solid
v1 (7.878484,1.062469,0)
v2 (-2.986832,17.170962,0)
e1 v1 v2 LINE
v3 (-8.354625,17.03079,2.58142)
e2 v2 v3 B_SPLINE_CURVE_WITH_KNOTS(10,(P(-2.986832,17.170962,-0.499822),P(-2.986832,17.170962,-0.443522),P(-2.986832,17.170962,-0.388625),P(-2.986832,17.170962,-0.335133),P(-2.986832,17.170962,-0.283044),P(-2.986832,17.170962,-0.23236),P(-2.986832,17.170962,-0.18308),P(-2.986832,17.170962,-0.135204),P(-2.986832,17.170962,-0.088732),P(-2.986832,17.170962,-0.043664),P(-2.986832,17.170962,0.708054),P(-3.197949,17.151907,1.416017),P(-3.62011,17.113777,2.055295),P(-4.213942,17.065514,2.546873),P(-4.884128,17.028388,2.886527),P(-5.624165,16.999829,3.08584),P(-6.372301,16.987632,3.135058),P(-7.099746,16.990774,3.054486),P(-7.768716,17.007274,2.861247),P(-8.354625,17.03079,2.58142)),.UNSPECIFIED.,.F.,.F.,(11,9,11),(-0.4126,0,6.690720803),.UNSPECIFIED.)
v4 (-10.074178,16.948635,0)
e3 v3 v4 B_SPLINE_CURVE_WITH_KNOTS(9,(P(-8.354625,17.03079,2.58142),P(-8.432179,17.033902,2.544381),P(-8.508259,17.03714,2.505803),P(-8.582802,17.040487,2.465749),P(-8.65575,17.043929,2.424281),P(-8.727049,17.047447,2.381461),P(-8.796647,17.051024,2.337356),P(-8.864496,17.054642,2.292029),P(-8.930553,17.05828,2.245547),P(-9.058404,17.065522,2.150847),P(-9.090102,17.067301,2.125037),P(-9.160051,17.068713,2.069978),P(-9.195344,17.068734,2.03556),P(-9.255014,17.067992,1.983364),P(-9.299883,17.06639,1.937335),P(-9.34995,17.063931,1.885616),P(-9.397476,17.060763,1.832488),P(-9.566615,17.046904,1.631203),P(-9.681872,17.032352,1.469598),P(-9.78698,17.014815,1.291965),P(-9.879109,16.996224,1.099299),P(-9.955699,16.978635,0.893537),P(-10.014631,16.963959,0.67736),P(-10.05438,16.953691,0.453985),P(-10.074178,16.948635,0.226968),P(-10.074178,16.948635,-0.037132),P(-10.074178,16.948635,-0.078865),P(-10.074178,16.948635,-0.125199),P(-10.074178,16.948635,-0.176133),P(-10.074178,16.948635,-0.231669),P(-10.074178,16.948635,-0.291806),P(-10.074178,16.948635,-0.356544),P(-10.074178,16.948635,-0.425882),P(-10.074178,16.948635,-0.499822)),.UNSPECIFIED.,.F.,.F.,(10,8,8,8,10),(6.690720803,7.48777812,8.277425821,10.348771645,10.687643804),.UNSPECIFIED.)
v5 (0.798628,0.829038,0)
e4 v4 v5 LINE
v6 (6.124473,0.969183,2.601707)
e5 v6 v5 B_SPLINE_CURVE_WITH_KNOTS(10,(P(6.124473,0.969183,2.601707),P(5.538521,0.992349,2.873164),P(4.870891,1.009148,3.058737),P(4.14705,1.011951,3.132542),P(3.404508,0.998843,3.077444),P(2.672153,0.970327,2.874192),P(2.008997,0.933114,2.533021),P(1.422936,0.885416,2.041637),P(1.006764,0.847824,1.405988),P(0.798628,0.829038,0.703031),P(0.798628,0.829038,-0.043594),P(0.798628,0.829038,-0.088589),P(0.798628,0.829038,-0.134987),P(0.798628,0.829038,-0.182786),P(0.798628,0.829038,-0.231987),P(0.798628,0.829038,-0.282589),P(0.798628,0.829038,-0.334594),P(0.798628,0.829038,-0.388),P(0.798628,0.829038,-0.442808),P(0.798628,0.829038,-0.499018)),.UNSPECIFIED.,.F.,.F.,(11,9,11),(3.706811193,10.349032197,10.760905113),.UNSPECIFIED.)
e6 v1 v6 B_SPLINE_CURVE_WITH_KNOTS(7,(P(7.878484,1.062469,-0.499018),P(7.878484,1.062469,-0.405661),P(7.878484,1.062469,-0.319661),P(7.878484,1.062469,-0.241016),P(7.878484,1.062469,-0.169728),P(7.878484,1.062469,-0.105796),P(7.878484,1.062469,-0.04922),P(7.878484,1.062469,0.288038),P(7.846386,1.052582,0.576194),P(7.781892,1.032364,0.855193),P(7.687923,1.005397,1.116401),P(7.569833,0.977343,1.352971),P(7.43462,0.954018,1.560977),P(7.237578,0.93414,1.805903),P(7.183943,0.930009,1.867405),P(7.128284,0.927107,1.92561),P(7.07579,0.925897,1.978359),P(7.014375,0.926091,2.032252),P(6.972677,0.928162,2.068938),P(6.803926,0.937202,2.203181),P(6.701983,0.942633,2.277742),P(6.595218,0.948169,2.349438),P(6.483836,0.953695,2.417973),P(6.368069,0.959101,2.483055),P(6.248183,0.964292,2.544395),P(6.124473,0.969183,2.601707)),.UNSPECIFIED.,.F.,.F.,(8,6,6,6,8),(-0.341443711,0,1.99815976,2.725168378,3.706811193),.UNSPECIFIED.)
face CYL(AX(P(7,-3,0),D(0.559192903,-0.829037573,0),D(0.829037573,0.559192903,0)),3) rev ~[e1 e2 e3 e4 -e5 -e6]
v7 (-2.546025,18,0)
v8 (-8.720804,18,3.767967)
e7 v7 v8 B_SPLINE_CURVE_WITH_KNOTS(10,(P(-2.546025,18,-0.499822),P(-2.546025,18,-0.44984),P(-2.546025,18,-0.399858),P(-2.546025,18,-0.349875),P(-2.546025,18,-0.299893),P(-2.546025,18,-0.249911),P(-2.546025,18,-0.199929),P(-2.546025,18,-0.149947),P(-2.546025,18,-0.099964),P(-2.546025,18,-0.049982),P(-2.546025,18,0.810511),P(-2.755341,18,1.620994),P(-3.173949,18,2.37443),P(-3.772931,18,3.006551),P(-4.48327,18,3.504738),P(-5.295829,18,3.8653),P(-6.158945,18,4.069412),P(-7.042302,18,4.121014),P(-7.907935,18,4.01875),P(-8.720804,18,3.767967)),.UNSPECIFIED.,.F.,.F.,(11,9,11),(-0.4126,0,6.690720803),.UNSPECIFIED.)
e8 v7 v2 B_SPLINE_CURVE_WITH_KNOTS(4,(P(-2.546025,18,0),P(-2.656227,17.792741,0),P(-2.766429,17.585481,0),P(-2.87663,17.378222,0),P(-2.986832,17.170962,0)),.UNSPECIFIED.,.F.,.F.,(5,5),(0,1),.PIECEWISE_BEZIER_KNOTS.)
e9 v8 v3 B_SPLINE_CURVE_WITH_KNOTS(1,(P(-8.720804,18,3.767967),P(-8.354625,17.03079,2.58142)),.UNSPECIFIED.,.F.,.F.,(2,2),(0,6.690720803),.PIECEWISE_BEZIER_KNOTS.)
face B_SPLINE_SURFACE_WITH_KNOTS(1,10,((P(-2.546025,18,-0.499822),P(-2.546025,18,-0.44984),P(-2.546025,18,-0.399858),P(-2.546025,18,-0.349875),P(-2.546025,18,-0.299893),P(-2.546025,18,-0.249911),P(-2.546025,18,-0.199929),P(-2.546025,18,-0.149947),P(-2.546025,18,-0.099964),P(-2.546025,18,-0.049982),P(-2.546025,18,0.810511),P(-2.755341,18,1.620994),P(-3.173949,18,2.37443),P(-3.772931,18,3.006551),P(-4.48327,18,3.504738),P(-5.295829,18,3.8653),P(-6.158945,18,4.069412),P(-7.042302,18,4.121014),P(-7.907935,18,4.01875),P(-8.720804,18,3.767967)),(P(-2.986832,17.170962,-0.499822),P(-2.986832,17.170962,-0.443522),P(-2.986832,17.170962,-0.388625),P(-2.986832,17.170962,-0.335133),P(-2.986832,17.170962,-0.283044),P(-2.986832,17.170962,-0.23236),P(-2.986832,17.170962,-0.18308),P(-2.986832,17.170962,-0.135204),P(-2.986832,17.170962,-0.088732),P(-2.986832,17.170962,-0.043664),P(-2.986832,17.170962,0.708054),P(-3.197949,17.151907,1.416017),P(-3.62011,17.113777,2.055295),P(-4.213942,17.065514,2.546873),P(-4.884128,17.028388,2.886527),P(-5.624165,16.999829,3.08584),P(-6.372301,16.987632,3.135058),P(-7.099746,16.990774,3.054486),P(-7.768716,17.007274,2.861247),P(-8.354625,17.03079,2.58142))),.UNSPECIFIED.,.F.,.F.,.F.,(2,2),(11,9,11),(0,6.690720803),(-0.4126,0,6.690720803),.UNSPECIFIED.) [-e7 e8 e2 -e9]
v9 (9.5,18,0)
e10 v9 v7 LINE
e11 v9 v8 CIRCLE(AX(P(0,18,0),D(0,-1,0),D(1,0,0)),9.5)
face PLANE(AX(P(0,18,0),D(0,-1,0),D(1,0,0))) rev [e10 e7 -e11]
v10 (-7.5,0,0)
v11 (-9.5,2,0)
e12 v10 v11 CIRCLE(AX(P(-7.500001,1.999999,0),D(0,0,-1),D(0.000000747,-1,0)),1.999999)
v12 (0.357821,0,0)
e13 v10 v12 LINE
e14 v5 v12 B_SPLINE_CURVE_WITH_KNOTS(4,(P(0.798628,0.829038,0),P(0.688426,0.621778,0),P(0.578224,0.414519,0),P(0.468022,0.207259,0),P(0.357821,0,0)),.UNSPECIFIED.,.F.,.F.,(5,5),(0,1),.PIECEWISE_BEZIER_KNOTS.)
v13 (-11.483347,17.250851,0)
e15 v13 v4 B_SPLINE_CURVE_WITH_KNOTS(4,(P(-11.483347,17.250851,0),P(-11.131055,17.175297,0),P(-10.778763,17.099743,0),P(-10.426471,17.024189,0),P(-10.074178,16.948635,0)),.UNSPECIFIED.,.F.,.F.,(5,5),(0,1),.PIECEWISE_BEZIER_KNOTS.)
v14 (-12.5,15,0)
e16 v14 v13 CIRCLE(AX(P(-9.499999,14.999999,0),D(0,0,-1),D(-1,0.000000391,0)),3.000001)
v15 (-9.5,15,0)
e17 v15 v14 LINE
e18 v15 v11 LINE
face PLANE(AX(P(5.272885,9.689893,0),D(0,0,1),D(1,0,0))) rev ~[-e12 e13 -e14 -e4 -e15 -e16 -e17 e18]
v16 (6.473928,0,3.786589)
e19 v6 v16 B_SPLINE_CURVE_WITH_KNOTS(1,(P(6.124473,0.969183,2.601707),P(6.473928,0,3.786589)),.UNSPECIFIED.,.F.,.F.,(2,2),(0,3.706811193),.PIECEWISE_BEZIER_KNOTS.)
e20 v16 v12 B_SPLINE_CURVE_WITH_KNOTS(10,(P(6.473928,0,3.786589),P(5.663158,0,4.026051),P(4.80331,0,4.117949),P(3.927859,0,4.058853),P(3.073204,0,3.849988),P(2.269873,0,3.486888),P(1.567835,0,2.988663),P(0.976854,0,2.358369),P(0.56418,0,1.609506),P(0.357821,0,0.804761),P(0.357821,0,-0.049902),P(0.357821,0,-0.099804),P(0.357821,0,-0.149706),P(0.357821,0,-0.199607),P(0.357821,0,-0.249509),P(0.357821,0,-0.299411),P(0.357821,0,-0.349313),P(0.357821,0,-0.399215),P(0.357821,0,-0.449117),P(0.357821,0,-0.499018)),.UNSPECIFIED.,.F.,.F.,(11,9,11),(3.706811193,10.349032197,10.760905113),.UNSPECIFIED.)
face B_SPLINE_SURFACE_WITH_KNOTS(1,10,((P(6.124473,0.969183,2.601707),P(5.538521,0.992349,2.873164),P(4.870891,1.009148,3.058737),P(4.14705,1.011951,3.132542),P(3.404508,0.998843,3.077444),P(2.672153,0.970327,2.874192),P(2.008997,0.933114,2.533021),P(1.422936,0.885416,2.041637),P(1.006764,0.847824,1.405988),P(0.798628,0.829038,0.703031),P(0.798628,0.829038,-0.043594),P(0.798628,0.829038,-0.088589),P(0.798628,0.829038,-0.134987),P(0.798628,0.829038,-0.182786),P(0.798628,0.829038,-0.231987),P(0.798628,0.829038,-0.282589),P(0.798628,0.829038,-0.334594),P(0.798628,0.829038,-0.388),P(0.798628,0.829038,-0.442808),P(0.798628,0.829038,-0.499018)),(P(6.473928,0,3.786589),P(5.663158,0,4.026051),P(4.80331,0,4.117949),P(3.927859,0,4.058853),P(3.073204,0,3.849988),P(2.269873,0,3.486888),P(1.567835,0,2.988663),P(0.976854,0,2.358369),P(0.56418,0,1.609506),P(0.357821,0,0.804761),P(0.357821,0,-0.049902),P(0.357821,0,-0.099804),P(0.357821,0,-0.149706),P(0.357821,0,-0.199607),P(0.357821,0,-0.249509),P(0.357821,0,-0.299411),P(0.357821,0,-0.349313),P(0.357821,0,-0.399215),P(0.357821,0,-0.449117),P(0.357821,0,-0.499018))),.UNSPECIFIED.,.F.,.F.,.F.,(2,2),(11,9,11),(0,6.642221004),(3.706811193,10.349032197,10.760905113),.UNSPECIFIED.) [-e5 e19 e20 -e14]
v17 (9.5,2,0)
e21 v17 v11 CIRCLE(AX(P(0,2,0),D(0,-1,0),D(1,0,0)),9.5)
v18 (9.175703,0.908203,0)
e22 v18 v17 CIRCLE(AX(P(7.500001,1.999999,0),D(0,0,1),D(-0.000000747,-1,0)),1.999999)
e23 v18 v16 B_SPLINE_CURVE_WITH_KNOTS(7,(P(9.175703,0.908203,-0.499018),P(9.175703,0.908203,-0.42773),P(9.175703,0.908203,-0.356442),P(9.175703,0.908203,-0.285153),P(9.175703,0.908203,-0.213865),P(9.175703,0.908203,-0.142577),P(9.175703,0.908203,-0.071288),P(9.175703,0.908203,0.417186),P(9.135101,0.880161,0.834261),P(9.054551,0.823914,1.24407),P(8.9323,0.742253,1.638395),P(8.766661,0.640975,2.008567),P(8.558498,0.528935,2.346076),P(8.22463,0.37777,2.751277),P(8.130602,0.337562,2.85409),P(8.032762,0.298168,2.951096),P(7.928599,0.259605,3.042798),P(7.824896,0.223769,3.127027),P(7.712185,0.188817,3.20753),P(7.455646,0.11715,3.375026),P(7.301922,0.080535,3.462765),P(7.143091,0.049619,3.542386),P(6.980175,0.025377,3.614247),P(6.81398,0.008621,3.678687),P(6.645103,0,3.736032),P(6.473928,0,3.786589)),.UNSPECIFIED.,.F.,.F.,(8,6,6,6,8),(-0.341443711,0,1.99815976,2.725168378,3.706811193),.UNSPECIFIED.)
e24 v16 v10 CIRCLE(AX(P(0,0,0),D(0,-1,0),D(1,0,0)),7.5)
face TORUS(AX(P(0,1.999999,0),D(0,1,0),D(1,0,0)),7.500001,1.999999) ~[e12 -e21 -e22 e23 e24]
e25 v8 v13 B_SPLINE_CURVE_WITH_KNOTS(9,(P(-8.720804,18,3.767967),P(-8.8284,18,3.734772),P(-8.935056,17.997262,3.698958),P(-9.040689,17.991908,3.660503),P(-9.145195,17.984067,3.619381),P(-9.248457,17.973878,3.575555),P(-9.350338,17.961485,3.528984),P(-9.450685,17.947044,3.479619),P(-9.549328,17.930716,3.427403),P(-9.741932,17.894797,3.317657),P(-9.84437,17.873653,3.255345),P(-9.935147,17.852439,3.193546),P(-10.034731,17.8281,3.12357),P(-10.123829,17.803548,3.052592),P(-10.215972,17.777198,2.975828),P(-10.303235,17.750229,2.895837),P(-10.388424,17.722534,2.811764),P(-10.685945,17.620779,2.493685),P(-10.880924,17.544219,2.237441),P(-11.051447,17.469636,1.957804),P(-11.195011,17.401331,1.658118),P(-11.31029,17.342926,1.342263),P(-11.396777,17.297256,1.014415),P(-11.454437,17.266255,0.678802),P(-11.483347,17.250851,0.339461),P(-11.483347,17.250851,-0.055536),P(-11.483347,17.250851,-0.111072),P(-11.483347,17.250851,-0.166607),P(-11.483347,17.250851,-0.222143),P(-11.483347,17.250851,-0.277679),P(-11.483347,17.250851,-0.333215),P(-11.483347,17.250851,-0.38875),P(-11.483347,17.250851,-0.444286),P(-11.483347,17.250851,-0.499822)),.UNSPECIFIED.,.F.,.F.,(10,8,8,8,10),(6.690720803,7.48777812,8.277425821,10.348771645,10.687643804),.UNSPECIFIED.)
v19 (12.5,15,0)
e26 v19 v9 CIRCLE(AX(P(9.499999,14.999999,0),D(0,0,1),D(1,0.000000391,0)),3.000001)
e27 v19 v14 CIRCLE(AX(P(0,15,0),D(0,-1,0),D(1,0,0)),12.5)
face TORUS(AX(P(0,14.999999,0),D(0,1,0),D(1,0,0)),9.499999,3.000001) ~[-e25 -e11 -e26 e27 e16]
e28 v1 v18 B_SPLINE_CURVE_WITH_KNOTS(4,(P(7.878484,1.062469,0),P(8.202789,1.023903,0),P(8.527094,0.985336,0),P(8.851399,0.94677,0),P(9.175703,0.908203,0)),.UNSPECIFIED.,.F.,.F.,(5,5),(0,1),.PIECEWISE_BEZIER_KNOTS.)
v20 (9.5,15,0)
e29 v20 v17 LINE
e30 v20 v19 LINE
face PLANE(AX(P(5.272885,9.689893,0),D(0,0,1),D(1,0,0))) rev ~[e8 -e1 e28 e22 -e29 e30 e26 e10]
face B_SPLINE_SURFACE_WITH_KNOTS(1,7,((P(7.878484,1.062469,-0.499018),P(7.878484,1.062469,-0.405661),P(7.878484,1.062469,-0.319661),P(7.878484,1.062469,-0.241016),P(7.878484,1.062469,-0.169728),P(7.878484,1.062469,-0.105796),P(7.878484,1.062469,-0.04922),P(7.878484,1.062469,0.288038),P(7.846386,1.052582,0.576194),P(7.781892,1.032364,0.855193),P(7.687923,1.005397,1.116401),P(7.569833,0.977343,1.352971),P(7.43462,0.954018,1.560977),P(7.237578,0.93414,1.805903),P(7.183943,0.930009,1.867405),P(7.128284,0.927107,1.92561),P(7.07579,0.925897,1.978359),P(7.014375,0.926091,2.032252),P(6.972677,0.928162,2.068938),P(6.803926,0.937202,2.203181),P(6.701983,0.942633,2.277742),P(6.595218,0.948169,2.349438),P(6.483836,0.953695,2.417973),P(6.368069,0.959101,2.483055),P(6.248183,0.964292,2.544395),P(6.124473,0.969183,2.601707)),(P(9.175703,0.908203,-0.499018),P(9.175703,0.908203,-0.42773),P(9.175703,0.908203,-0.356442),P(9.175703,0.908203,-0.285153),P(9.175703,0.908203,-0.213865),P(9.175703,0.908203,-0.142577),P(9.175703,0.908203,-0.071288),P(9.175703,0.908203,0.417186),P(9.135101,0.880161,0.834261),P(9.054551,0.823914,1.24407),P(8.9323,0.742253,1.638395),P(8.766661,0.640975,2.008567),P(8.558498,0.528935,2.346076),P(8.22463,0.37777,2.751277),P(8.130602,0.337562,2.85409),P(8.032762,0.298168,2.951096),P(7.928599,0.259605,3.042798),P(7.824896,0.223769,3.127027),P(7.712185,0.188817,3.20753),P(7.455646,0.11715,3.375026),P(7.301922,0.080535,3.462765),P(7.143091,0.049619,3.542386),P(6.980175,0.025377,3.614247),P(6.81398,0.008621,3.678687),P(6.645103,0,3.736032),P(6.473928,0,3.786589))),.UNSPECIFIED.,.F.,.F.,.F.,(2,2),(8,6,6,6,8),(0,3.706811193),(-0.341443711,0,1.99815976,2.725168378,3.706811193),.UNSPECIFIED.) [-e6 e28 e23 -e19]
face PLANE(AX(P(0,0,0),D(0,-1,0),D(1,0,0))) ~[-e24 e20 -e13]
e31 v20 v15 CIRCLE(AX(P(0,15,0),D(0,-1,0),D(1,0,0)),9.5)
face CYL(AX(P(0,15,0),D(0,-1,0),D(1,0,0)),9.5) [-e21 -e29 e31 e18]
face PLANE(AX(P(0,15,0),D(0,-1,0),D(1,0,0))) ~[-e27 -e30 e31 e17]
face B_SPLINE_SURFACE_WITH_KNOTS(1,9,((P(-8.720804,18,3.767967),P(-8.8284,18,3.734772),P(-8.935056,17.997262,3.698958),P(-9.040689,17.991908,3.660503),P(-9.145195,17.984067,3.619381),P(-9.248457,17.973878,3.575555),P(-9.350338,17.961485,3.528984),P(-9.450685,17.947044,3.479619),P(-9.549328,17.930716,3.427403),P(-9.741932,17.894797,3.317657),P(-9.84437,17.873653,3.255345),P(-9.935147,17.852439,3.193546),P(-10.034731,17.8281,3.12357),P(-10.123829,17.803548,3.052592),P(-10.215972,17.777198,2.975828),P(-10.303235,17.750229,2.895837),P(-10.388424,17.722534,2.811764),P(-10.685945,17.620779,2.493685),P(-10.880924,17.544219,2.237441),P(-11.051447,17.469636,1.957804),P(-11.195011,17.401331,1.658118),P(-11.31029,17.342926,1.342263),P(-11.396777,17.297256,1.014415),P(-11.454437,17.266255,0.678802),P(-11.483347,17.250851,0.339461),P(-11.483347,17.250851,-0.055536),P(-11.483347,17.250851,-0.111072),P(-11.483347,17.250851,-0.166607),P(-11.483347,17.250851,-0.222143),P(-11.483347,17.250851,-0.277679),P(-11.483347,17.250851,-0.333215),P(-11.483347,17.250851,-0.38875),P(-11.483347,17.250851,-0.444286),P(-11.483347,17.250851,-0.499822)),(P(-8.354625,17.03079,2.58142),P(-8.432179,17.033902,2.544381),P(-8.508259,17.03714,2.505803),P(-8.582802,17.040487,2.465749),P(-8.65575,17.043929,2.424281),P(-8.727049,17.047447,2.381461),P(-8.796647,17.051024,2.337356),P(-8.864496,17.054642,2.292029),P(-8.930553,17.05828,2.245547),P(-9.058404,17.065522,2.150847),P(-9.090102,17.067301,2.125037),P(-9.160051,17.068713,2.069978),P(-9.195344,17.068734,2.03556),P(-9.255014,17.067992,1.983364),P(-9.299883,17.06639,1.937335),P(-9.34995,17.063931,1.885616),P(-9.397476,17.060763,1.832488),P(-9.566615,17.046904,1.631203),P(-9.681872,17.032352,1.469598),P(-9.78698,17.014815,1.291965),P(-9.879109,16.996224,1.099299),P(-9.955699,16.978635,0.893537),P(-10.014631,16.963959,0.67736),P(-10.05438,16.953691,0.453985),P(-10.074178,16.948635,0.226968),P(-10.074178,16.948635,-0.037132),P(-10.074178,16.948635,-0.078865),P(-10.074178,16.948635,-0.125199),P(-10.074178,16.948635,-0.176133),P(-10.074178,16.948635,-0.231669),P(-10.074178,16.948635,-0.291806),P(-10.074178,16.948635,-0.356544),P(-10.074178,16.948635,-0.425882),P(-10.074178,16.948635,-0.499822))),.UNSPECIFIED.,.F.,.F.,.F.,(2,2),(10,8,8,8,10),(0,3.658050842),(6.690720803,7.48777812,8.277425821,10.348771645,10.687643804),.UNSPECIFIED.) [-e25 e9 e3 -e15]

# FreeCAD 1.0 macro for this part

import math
import FreeCAD as App
import Part
import Sketcher


def edges_at(feature, points):
    """Names of the edges that pass closest to the given points."""
    edges = feature.Shape.Edges
    near = lambda p: min(range(len(edges)), key=lambda i: edges[i].distToShape(Part.Vertex(*p))[0])
    return sorted({f"Edge{near(p) + 1}" for p in points})

doc = App.newDocument("Part")
body = doc.addObject("PartDesign::Body", "Body")

# Sketch on XZ plane
sketch1 = body.newObject("Sketcher::SketchObject", "Sketch")
sketch1.AttachmentSupport = (doc.getObject("XZ_Plane"), [""])
sketch1.MapMode = "FlatFace"
sketch1.addGeometry(Part.Circle(App.Vector(0, 0, 0), App.Vector(0, 0, 1), 3), False)
sketch1.addConstraint([
    Sketcher.Constraint("Coincident", 0, 3, -1, 1),
    Sketcher.Constraint("Diameter", 0, 6.0),
])
pad1 = body.newObject("PartDesign::Pad", "Pad")
pad1.Profile = sketch1
pad1.Length = 29
pad1.Reversed = True
body2 = doc.addObject("PartDesign::Body", "Body001")
doc.recompute()

body.Placement = App.Placement(App.Vector(7, -3, 0), App.Rotation(App.Vector(0, 0, 1), 34))
boolean = body2.newObject("PartDesign::Boolean", "Boolean")
boolean.Type = "Fuse"
boolean.addObjects([body])
body3 = doc.addObject("PartDesign::Body", "Body002")

# Sketch on XY plane
sketch2 = body3.newObject("Sketcher::SketchObject", "Sketch001")
sketch2.AttachmentSupport = (doc.getObject("XY_Plane002"), [""])
sketch2.MapMode = "FlatFace"
sketch2.addGeometry([
    Part.LineSegment(App.Vector(9.5, 15, 0), App.Vector(12.5, 15, 0)),  # 0
    Part.ArcOfCircle(Part.Circle(App.Vector(9.5, 15, 0), App.Vector(0, 0, 1), 3), math.radians(0), math.radians(90)),  # 1
    Part.LineSegment(App.Vector(9.5, 18, 0), App.Vector(0, 18, 0)),  # 2
    Part.LineSegment(App.Vector(0, 18, 0), App.Vector(0, 0, 0)),  # 3
    Part.LineSegment(App.Vector(0, 0, 0), App.Vector(7.5, 0, 0)),  # 4
    Part.ArcOfCircle(Part.Circle(App.Vector(7.5, 2, 0), App.Vector(0, 0, 1), 2), math.radians(-90), math.radians(0)),  # 5
    Part.LineSegment(App.Vector(9.5, 2, 0), App.Vector(9.5, 15, 0)),  # 6
], False)
sketch2.addConstraint([
    Sketcher.Constraint("Coincident", 0, 2, 1, 1),
    Sketcher.Constraint("Tangent", 1, 2, 2, 1),
    Sketcher.Constraint("Coincident", 2, 2, 3, 1),
    Sketcher.Constraint("Coincident", 3, 2, 4, 1),
    Sketcher.Constraint("Tangent", 4, 2, 5, 1),
    Sketcher.Constraint("Tangent", 5, 2, 6, 1),
    Sketcher.Constraint("Coincident", 6, 2, 0, 1),
    Sketcher.Constraint("Horizontal", 0),
    Sketcher.Constraint("Horizontal", 2),
    Sketcher.Constraint("Vertical", 3),
    Sketcher.Constraint("Horizontal", 4),
    Sketcher.Constraint("Vertical", 6),
    Sketcher.Constraint("Coincident", 3, 2, -1, 1),
    Sketcher.Constraint("Coincident", 6, 2, 1, 3),
    Sketcher.Constraint("Radius", 1, 3.000001),
    Sketcher.Constraint("Radius", 5, 1.999999),
    Sketcher.Constraint("DistanceY", 3, 2, 3, 1, 18.0),
    Sketcher.Constraint("DistanceX", 2, 2, 2, 1, 9.5),
])
revolution = body3.newObject("PartDesign::Revolution", "Revolution")
revolution.Profile = sketch2
revolution.ReferenceAxis = (sketch2, ["V_Axis"])
revolution.Angle = 180
revolution.Reversed = True
doc.recompute()

boolean2 = body3.newObject("PartDesign::Boolean", "Boolean001")
boolean2.Type = "Cut"
boolean2.addObjects([body2])
doc.recompute()

chamfer = body3.newObject("PartDesign::Chamfer", "Chamfer")
chamfer.Base = (boolean2, edges_at(boolean2, [(-5.636, 18, 2.719), (3.511, 0, 2.743)]))
chamfer.Size = 1

doc.recompute()
